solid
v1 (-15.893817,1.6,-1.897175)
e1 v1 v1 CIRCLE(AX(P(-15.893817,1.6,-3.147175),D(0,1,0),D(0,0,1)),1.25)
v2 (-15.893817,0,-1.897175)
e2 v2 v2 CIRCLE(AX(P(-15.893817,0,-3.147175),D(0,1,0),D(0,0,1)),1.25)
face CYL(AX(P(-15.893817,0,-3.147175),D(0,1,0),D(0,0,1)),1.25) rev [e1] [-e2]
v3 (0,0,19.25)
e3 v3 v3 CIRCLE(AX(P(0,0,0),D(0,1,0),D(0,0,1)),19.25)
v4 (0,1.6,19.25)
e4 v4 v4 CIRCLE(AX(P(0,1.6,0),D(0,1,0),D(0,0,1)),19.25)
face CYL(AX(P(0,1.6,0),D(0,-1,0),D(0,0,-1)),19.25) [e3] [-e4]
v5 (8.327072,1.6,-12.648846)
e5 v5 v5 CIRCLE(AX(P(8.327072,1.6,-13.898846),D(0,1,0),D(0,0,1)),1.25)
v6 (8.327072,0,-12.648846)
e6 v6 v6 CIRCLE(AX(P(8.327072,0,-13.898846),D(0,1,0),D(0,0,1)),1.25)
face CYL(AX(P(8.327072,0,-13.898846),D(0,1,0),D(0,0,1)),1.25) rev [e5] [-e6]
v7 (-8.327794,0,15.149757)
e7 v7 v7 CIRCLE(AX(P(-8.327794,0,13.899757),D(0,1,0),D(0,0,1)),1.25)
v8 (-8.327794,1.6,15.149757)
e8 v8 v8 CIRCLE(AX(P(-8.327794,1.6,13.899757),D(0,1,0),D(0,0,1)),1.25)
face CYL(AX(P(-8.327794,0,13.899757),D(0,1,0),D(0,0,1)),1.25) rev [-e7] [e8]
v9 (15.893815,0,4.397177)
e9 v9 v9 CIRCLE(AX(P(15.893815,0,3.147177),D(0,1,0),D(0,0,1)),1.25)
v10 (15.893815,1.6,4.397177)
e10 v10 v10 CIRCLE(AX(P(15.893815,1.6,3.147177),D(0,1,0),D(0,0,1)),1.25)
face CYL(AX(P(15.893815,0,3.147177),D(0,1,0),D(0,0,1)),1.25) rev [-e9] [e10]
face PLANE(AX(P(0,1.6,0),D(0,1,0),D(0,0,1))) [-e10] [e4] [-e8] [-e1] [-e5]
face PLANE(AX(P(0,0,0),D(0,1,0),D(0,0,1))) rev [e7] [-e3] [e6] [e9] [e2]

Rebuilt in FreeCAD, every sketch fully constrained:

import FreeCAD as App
import Part
import Sketcher
Q = App.Units.Quantity

doc = App.newDocument("Part")
body = doc.addObject("PartDesign::Body", "Body")

sketch1 = doc.addObject("Sketcher::SketchObject", "Sketch")
body.addObject(sketch1)
sketch1.AttachmentSupport = (doc.XZ_Plane, [""])
sketch1.MapMode = "FlatFace"
sketch1.addGeometry(Part.Circle(App.Vector(0, 0, 0), App.Vector(0, 0, 1), 19.25), False)
sketch1.addConstraint([
    Sketcher.Constraint("Coincident", 0, 3, -1, 1),
    Sketcher.Constraint("Diameter", 0, Q("38.5 mm")),
])
pad1 = doc.addObject("PartDesign::Pad", "Pad")
body.addObject(pad1)
pad1.Profile = sketch1
pad1.Length = 1.6
pad1.Reversed = True

sketch2 = doc.addObject("Sketcher::SketchObject", "Sketch001")
body.addObject(sketch2)
sketch2.AttachmentSupport = (doc.XZ_Plane, [""])
sketch2.MapMode = "FlatFace"
sketch2.AttachmentOffset = App.Placement(App.Vector(0, 0, -1.6), App.Rotation())
sketch2.addGeometry([
    Part.Circle(App.Vector(-15.893817, -3.147175, 0), App.Vector(0, 0, 1), 1.25),
    Part.Circle(App.Vector(8.327072, -13.898846, 0), App.Vector(0, 0, 1), 1.25),
    Part.Circle(App.Vector(15.893815, 3.147177, 0), App.Vector(0, 0, 1), 1.25),
    Part.Circle(App.Vector(-8.327794, 13.899757, 0), App.Vector(0, 0, 1), 1.25),
], False)
sketch2.addConstraint([
    Sketcher.Constraint("Equal", 0, 1),
    Sketcher.Constraint("Equal", 1, 2),
    Sketcher.Constraint("Equal", 2, 3),
    Sketcher.Constraint("Symmetric", 0, 3, 2, 3, -1, 1),
    Sketcher.Constraint("Diameter", 0, Q("2.5 mm")),
    Sketcher.Constraint("DistanceX", 0, 3, 1, 3, Q("24.220889 mm")),
    Sketcher.Constraint("DistanceY", 1, 3, 0, 3, Q("10.751671 mm")),
    Sketcher.Constraint("DistanceX", 0, 3, 2, 3, Q("31.787632 mm")),
    Sketcher.Constraint("DistanceX", 3, 3, 2, 3, Q("24.221609 mm")),
    Sketcher.Constraint("DistanceY", 2, 3, 3, 3, Q("10.75258 mm")),
    Sketcher.Constraint("DistanceY", 0, 3, -1, 1, Q("3.147175 mm")),
])
pocket1 = doc.addObject("PartDesign::Pocket", "Pocket")
body.addObject(pocket1)
pocket1.Profile = sketch2
pocket1.Type = "ThroughAll"
pocket1.Reversed = True

doc.recompute()
